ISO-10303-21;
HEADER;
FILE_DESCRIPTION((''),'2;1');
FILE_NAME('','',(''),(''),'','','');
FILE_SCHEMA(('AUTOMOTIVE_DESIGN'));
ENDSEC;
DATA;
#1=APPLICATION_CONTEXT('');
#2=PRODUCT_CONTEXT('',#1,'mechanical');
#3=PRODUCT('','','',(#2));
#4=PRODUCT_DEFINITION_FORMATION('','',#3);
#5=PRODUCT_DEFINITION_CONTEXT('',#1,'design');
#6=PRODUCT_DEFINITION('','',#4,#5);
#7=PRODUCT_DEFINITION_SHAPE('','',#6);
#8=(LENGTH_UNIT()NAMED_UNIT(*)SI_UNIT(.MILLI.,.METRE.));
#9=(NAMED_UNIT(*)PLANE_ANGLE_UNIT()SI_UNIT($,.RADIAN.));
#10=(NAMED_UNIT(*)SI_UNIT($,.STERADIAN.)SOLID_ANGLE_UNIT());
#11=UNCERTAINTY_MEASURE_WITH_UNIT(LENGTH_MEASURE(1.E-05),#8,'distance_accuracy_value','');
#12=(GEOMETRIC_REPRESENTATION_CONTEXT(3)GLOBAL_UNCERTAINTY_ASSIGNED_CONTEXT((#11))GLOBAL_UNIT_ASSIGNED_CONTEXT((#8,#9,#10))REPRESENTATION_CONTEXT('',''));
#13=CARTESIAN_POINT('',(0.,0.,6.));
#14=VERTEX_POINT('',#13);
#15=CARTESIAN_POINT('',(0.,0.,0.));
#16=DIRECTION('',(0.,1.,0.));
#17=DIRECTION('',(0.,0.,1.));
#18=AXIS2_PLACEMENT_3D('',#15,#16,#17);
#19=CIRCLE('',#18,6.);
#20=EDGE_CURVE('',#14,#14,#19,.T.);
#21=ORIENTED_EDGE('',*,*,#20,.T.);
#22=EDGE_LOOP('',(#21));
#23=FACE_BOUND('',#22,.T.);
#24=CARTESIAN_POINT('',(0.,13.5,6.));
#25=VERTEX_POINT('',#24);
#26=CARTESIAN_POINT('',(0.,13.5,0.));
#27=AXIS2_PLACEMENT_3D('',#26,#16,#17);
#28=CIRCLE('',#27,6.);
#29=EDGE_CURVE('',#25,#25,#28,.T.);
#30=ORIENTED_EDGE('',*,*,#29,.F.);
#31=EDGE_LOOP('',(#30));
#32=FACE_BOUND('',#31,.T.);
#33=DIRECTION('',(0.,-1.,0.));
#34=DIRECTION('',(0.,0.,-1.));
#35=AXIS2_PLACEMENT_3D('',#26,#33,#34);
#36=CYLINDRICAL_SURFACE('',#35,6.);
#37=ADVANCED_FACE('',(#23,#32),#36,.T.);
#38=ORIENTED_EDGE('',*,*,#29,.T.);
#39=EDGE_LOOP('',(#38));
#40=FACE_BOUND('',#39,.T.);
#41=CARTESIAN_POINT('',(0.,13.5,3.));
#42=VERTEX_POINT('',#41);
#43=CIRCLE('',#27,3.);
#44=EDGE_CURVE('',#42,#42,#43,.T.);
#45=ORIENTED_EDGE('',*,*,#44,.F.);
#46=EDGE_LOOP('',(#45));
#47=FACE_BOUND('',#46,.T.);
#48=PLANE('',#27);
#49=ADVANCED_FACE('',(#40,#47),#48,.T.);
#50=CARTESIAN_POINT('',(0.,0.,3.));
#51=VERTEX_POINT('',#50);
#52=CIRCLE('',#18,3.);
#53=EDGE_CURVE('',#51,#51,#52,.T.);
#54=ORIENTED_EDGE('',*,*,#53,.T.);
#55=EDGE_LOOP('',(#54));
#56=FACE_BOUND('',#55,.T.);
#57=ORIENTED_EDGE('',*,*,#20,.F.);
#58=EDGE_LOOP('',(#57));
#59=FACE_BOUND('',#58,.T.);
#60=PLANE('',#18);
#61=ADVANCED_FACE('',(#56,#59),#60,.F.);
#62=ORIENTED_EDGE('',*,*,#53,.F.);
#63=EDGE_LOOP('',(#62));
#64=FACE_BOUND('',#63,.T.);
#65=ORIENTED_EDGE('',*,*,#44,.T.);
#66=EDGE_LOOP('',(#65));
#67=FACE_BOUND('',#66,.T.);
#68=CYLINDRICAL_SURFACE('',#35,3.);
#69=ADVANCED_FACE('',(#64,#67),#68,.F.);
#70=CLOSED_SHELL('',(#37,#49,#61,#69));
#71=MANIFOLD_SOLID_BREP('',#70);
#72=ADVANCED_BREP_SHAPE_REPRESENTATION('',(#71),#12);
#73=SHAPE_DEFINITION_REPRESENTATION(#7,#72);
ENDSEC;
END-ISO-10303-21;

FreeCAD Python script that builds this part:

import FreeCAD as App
import Part
import Sketcher

V = App.Vector

doc = App.newDocument("Part")
body = doc.addObject("PartDesign::Body", "Body")

# Sketch on XZ plane
sketch1 = body.newObject("Sketcher::SketchObject", "Sketch")
sketch1.AttachmentSupport = (doc.getObject("XZ_Plane"), [""])
sketch1.MapMode = "FlatFace"
sketch1.addGeometry([
    Part.Circle(V(0, 0, 0), V(0, 0, 1), 6),
    Part.Circle(V(0, 0, 0), V(0, 0, 1), 3),
], False)
sketch1.addConstraint([
    Sketcher.Constraint("Coincident", 0, 3, -1, 1),
    Sketcher.Constraint("Coincident", 1, 3, -1, 1),
    Sketcher.Constraint("Diameter", 0, 12.0),
    Sketcher.Constraint("Diameter", 1, 6.0),
])
pad1 = body.newObject("PartDesign::Pad", "Pad")
pad1.Profile = sketch1
pad1.Length = 13.5
pad1.Reversed = True

doc.recompute()
